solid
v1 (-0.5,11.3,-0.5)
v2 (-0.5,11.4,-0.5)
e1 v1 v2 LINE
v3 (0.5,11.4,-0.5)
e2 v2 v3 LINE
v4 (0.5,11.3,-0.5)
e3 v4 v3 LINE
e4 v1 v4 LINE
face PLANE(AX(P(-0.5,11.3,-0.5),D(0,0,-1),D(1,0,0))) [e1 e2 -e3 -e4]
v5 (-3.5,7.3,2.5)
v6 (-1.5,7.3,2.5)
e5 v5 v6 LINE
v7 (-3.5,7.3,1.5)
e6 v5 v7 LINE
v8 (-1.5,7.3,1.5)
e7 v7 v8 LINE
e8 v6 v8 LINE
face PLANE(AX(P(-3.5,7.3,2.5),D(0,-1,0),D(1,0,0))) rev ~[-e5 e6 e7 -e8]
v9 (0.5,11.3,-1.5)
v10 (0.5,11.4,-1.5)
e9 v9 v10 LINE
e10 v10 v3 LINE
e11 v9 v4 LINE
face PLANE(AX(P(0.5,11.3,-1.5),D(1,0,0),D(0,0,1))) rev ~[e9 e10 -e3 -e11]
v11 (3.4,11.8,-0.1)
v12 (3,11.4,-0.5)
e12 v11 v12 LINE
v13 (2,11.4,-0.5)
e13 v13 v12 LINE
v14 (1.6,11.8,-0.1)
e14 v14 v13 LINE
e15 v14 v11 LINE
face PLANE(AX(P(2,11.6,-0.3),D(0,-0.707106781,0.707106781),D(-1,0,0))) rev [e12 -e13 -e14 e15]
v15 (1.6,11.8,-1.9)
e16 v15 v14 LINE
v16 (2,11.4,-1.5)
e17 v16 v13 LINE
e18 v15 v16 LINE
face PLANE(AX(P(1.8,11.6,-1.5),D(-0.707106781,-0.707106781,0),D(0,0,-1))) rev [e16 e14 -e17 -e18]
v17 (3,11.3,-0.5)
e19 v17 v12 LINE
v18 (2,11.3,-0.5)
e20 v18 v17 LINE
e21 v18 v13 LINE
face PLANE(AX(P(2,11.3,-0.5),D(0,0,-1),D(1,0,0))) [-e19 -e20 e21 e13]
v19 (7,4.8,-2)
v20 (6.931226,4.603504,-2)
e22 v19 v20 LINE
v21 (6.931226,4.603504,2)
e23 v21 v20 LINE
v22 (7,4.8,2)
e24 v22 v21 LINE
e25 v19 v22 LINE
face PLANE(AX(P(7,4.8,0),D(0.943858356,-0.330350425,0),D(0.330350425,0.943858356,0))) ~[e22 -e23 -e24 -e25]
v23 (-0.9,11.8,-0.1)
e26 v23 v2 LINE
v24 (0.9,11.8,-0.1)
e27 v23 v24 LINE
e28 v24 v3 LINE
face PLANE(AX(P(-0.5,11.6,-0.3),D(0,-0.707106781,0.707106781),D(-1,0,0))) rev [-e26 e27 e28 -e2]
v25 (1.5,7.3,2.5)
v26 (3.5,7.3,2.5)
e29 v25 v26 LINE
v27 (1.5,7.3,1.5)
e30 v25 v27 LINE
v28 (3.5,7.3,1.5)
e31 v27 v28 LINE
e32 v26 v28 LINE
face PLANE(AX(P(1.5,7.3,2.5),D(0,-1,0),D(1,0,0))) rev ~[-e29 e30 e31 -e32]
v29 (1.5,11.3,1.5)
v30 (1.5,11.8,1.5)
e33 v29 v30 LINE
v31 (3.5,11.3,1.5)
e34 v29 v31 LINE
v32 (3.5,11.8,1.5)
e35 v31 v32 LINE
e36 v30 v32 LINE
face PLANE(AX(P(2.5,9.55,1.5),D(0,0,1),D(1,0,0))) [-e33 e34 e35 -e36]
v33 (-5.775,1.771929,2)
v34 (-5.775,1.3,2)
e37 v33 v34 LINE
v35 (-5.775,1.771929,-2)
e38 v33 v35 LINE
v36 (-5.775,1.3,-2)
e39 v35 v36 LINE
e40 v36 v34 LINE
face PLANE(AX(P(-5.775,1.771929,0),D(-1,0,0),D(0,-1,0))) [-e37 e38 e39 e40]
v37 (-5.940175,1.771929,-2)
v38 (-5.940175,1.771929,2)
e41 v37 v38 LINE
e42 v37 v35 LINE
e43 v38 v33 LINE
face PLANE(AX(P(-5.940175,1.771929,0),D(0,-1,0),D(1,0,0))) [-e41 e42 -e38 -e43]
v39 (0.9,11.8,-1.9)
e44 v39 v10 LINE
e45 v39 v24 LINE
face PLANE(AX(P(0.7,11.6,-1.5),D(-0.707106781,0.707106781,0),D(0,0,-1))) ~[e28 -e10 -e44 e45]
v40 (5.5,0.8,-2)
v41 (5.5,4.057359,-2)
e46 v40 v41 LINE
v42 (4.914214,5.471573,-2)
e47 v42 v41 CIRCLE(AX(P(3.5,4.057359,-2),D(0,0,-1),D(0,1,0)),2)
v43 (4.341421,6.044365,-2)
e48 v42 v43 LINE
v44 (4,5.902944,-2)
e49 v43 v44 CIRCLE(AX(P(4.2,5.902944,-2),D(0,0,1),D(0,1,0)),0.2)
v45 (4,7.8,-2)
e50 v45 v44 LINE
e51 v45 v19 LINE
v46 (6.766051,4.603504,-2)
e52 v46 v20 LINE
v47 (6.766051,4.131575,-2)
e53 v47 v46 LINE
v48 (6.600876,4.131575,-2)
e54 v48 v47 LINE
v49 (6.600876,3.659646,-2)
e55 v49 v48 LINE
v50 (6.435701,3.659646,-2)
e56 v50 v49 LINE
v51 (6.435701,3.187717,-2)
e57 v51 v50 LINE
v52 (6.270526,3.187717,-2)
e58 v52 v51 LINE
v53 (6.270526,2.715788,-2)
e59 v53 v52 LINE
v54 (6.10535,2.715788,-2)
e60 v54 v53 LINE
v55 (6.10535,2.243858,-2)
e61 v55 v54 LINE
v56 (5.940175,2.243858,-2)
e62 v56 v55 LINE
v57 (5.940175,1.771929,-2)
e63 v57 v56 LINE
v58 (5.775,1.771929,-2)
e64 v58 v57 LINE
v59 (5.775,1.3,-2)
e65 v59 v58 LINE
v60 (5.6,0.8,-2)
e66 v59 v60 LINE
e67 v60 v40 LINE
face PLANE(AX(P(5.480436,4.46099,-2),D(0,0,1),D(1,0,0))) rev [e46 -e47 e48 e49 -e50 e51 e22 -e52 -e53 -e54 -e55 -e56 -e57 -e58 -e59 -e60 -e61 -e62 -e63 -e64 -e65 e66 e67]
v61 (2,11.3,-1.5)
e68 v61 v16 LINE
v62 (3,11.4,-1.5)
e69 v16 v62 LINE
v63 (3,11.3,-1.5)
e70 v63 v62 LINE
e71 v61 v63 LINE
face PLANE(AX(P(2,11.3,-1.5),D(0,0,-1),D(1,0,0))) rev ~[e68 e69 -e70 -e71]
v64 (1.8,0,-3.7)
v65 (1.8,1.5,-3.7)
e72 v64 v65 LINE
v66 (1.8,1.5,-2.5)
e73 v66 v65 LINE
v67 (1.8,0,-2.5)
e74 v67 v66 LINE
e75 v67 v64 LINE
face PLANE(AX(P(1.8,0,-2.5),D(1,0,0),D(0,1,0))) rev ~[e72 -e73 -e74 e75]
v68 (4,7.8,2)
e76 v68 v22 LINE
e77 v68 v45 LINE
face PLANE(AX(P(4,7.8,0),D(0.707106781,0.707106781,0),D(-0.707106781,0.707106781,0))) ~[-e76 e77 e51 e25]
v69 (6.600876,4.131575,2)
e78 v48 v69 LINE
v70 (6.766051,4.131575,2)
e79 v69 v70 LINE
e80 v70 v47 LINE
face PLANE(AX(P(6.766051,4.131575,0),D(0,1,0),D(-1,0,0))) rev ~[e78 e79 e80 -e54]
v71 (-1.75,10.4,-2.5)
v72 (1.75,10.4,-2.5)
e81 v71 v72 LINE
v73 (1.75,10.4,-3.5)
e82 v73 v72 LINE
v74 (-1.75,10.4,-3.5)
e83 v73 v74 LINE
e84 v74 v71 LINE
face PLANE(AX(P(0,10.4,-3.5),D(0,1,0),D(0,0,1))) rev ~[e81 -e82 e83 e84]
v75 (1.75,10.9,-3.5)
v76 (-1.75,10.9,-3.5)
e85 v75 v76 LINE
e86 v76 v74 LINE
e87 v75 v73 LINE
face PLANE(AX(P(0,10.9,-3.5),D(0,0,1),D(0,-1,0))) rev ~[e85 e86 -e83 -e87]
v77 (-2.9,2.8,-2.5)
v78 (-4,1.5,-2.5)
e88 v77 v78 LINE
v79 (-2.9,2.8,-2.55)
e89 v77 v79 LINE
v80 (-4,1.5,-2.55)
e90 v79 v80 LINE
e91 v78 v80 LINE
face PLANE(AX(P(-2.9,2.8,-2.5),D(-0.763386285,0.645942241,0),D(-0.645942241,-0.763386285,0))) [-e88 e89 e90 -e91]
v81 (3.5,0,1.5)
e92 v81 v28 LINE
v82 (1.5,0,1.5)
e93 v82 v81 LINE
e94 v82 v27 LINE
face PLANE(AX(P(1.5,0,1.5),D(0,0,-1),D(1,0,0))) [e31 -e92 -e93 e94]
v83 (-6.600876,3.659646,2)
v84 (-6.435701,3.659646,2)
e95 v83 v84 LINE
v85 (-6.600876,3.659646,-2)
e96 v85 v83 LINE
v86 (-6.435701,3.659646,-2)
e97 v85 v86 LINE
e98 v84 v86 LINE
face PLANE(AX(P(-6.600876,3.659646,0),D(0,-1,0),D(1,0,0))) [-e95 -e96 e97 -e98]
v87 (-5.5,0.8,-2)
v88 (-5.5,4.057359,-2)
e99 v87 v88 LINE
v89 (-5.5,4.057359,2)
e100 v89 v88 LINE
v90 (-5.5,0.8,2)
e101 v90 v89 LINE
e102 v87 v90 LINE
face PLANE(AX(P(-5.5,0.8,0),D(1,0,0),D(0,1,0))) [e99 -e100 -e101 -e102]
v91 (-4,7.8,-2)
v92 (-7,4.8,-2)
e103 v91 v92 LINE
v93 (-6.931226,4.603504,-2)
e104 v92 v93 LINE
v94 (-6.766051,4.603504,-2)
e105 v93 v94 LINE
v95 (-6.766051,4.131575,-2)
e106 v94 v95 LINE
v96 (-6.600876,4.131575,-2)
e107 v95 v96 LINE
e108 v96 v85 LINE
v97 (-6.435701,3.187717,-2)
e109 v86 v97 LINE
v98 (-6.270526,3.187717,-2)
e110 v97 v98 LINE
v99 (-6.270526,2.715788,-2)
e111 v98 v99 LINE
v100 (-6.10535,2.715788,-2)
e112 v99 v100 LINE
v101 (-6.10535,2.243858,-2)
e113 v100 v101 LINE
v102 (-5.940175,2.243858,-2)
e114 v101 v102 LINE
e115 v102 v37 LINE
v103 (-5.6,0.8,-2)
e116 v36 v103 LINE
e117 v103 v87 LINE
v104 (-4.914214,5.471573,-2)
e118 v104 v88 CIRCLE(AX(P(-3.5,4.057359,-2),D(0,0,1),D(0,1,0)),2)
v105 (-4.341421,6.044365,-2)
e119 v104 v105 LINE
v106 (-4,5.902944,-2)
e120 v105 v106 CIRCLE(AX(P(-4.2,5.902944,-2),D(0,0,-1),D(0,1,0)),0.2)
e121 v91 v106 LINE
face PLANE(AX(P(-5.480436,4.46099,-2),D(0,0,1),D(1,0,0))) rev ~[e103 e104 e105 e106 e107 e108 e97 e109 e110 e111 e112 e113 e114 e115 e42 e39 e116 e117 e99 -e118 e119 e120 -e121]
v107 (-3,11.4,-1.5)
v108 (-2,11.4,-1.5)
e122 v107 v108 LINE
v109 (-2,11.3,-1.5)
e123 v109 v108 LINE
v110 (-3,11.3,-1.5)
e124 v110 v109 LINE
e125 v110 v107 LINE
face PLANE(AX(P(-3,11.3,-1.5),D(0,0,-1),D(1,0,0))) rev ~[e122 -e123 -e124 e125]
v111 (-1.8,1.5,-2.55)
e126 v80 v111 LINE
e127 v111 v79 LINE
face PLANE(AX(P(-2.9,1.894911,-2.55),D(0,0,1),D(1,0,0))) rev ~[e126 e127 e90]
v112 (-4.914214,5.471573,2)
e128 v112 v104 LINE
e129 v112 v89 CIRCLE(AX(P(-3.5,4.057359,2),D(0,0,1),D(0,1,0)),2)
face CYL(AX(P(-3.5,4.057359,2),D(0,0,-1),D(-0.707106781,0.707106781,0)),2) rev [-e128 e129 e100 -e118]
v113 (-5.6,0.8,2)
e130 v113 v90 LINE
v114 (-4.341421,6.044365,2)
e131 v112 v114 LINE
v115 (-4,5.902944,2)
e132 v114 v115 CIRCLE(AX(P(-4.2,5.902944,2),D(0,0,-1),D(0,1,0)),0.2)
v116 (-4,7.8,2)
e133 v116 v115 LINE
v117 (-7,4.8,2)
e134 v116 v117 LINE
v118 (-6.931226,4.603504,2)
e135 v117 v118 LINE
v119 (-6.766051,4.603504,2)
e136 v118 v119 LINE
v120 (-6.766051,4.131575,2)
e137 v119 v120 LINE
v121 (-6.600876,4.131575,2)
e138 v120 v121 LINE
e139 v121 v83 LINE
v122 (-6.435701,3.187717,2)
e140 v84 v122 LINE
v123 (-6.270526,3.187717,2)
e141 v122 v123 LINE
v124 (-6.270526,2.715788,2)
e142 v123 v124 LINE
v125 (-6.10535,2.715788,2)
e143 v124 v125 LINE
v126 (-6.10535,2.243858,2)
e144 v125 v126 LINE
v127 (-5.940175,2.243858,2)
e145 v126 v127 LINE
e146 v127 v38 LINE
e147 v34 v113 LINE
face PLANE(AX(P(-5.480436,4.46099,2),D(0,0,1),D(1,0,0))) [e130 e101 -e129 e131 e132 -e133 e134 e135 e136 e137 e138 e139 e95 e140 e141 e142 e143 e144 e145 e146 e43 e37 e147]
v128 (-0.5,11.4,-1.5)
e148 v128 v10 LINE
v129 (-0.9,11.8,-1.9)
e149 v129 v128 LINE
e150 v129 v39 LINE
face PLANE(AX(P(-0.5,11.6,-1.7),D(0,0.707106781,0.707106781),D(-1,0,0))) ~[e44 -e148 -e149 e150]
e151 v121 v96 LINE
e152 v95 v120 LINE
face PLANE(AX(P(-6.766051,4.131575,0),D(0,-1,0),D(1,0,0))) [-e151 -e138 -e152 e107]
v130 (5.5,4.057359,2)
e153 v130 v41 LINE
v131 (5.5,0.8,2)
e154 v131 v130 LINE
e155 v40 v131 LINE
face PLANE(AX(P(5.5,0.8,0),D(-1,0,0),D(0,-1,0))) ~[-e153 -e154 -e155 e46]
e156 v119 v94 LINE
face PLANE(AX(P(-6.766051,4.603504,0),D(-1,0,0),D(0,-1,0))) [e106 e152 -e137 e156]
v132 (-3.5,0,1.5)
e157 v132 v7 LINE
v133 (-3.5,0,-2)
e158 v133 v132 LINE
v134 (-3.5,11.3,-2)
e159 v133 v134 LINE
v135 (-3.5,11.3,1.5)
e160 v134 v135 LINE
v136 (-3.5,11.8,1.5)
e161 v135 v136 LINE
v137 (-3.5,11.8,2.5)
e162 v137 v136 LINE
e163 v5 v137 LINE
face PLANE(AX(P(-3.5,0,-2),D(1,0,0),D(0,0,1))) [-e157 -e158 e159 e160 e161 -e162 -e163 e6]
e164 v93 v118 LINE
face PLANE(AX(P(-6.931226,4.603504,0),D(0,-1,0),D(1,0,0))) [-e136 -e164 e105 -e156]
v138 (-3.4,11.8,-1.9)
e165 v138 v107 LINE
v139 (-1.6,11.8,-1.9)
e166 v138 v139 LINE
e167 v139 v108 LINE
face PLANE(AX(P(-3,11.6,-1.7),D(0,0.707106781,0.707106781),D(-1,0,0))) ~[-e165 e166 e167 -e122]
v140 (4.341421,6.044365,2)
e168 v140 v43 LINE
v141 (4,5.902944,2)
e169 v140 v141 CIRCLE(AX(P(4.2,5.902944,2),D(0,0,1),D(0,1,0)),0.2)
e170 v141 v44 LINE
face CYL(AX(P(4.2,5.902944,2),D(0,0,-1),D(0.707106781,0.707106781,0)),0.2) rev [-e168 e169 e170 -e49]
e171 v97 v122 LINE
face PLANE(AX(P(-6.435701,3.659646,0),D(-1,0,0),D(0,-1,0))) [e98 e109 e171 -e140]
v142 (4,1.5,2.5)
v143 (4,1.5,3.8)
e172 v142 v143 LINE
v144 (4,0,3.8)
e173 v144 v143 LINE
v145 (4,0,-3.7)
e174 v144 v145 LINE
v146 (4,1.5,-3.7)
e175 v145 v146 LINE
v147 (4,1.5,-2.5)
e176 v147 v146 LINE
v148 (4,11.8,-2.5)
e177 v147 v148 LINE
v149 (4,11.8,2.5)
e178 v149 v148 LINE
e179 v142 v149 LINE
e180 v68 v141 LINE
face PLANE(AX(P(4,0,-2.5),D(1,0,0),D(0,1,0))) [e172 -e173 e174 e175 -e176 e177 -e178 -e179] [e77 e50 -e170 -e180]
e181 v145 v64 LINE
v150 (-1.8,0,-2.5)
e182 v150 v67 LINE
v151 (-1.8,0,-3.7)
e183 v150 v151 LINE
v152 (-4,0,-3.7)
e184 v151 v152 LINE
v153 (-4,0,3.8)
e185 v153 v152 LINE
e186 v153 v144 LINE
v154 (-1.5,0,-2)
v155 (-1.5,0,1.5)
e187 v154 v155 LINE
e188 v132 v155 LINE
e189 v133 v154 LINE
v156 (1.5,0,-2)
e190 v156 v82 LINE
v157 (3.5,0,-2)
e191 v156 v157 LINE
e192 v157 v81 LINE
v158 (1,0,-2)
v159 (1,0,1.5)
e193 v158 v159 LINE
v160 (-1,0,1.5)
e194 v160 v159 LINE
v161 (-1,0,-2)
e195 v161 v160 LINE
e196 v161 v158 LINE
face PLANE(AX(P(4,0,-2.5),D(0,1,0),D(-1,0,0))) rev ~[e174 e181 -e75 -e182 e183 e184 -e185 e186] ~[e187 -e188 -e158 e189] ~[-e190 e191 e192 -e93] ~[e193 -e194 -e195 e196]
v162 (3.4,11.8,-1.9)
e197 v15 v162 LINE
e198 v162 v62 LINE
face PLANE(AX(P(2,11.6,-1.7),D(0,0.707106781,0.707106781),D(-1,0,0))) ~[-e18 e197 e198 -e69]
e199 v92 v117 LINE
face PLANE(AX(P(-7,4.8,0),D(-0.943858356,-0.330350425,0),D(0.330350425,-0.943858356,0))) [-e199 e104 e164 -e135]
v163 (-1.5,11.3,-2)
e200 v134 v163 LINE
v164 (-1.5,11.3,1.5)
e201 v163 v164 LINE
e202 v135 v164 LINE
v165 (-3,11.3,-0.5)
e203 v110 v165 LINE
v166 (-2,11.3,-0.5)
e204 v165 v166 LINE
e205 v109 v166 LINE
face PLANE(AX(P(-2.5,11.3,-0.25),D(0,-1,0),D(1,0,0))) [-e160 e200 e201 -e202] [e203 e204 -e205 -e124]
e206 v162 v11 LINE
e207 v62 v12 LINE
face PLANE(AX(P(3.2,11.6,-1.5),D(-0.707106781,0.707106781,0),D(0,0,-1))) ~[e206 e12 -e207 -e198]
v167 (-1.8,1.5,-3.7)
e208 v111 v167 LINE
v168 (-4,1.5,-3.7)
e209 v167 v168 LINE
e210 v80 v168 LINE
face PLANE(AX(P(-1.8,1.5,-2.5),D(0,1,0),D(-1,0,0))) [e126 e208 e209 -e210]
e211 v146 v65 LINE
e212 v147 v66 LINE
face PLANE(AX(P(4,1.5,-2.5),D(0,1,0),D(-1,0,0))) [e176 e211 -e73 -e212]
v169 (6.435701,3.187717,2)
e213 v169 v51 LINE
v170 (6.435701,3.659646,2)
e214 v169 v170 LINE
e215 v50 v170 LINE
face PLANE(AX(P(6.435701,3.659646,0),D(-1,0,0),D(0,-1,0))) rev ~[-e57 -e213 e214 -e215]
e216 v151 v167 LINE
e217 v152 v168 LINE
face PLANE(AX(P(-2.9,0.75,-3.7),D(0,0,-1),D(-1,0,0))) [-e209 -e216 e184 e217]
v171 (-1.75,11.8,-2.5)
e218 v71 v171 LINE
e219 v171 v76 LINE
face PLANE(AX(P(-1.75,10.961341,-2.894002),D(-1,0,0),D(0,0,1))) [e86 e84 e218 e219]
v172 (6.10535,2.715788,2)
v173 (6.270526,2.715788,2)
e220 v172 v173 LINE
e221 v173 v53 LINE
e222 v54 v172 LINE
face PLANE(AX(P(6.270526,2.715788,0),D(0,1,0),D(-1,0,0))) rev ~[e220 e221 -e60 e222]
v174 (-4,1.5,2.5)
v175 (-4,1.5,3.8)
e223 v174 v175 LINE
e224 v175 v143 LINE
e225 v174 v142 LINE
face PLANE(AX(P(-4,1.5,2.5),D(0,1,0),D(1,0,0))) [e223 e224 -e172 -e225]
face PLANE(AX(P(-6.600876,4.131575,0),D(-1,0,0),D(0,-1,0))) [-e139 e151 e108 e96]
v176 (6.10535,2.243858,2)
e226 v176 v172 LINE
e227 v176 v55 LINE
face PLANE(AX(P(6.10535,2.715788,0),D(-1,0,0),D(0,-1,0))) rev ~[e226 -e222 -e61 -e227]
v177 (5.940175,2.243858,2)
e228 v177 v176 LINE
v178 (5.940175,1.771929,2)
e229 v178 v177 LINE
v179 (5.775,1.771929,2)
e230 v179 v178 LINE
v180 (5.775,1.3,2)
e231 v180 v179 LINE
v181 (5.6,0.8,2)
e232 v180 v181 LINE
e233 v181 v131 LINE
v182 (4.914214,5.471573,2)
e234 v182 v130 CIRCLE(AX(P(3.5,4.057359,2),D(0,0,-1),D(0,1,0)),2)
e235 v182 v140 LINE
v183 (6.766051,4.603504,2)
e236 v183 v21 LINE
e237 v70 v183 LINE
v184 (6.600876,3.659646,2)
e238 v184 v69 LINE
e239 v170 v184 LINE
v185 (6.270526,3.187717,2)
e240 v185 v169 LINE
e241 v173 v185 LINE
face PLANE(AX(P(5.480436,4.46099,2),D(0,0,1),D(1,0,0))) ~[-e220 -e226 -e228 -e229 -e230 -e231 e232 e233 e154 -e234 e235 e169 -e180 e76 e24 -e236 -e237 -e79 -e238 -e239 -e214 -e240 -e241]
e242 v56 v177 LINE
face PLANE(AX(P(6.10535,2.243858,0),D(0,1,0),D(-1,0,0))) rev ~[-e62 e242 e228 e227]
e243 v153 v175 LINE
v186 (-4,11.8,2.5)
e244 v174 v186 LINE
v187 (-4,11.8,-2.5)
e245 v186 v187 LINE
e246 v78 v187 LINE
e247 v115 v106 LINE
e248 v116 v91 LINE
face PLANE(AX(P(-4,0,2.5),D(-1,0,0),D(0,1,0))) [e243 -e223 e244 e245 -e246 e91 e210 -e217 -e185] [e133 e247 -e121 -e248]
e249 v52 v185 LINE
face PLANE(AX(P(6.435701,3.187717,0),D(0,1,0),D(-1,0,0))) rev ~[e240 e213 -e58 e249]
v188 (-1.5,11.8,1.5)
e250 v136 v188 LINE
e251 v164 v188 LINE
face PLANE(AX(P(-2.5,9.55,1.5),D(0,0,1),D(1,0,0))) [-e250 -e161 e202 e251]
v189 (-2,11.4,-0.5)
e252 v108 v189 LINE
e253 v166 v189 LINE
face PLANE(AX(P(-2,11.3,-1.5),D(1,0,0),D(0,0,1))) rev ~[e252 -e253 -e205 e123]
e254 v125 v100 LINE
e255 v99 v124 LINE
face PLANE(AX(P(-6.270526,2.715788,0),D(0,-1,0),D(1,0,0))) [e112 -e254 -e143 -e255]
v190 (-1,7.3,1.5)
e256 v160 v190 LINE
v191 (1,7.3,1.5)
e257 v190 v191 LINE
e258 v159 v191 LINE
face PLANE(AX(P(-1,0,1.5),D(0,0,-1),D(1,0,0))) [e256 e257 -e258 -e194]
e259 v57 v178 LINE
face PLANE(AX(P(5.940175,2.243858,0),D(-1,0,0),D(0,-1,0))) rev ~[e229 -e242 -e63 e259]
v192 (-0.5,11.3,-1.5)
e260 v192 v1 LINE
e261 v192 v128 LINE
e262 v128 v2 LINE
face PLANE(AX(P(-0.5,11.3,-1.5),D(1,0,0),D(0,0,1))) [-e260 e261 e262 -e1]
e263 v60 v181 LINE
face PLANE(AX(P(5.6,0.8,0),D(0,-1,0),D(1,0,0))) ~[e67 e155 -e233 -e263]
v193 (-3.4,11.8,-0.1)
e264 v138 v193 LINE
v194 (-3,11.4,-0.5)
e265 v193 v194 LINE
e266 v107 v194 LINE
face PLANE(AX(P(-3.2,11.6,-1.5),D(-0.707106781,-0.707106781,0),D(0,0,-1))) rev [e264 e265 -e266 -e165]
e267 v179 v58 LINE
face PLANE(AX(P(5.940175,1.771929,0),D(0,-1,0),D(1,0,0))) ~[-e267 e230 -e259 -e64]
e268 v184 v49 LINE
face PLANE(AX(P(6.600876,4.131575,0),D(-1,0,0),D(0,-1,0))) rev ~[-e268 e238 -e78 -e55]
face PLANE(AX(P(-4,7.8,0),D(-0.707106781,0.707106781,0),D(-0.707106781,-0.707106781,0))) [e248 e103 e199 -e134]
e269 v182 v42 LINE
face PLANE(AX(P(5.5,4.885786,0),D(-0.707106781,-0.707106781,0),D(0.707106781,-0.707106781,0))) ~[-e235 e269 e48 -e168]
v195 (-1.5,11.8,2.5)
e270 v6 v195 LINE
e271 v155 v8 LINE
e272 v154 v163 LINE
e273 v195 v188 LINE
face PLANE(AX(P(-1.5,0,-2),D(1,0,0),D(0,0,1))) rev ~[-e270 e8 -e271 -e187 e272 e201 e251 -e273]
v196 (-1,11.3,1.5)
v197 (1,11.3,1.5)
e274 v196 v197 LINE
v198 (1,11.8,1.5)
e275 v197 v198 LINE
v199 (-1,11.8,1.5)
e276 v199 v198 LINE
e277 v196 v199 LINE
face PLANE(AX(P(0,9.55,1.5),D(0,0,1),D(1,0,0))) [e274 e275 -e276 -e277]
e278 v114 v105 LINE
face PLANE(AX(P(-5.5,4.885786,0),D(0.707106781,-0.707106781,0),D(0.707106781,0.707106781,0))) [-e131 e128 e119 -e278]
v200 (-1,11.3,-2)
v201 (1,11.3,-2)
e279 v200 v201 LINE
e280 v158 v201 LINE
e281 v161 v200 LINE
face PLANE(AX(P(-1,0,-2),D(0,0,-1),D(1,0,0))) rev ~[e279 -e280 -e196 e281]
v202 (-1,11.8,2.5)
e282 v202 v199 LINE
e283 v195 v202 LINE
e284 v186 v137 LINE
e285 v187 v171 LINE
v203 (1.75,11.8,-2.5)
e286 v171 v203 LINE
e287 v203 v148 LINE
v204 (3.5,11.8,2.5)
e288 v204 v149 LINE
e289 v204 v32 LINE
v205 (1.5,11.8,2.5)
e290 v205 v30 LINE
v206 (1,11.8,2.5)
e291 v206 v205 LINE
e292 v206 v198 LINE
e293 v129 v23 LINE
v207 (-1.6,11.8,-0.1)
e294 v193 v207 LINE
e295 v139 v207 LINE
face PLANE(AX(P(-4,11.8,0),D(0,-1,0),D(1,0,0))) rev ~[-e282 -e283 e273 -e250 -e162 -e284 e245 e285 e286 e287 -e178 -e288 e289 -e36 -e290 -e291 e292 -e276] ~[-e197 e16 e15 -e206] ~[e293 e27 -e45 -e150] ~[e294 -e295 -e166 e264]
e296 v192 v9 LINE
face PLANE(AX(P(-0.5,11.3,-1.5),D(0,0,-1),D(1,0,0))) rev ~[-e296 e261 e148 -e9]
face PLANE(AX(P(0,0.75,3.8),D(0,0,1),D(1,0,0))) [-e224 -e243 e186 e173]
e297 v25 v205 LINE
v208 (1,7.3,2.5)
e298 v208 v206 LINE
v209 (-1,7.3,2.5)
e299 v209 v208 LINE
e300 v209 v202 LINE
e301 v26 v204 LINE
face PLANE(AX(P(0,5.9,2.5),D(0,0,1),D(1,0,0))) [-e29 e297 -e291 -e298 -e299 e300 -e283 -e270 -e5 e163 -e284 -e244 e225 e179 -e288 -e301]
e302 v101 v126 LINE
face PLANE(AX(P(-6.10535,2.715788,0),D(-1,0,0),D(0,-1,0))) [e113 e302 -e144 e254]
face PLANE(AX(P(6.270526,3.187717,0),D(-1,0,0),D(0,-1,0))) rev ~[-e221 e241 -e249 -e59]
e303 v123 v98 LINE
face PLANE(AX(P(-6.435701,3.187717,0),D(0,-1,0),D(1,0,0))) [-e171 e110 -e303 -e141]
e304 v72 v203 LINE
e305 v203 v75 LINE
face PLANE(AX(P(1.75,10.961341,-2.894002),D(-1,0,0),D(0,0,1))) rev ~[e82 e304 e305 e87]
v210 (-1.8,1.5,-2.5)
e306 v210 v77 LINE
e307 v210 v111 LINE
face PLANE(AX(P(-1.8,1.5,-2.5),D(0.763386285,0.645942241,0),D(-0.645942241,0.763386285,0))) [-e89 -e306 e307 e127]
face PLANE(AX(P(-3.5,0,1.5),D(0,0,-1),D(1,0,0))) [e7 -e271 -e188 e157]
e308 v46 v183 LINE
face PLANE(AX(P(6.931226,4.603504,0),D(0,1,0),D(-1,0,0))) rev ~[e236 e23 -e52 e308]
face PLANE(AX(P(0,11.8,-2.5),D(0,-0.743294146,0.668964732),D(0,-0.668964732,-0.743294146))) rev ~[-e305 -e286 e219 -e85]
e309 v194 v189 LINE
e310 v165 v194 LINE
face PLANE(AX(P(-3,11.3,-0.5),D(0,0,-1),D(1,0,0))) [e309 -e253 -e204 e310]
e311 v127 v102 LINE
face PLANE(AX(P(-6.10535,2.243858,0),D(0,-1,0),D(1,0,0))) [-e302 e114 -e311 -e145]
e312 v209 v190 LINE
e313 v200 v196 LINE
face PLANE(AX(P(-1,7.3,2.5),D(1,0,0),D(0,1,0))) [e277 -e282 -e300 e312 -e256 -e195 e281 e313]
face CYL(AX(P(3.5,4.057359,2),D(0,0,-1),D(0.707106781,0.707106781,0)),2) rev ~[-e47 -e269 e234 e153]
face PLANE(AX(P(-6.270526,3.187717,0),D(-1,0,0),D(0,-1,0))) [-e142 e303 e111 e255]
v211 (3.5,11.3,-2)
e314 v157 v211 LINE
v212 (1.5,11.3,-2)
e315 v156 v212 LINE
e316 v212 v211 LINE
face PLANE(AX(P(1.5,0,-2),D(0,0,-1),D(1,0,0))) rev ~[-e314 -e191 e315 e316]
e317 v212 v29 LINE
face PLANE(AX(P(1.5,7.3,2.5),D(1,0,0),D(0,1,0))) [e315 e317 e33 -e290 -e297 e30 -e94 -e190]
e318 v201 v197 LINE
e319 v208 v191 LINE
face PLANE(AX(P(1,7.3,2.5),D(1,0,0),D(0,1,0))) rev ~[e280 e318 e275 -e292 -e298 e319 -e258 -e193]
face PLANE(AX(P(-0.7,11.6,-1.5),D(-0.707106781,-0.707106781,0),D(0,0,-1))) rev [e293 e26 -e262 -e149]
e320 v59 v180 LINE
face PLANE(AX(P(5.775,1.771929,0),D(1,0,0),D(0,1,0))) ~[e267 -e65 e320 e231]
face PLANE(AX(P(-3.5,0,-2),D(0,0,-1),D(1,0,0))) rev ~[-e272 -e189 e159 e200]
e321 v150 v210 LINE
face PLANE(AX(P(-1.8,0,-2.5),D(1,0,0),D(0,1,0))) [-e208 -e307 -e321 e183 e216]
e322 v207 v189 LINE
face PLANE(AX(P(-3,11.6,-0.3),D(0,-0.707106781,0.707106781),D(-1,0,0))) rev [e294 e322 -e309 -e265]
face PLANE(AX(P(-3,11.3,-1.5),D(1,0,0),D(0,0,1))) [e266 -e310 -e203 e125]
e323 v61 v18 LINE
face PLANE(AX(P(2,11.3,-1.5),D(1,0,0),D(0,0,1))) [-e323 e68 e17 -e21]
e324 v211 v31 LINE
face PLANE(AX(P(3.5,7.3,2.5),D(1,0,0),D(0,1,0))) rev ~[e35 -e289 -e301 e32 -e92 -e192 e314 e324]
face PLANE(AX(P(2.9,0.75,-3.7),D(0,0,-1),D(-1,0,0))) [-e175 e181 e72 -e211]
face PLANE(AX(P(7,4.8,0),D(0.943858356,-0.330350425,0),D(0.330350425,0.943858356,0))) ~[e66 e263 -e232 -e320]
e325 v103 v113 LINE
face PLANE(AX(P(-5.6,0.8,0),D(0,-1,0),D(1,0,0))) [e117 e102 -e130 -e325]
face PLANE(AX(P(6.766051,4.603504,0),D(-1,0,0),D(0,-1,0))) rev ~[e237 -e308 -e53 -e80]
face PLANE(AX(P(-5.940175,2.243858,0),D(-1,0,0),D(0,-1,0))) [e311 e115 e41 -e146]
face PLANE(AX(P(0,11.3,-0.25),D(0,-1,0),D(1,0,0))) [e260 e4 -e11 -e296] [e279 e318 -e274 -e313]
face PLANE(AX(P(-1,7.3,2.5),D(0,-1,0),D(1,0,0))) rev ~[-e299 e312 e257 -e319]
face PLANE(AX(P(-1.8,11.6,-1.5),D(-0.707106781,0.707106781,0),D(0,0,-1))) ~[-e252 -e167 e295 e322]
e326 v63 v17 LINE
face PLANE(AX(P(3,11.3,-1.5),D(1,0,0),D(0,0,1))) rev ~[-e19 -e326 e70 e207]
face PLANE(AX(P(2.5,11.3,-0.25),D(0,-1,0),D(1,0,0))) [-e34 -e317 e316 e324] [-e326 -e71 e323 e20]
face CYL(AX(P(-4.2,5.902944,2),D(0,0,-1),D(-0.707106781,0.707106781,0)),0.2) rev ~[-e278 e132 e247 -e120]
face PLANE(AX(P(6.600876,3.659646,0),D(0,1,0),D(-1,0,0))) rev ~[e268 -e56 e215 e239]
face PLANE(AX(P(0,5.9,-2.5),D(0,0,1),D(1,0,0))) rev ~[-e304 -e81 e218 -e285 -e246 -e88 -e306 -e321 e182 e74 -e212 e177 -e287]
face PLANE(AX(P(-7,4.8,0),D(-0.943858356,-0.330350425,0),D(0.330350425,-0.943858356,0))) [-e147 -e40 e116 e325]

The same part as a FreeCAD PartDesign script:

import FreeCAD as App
import Part
import Sketcher
Q = App.Units.Quantity


def edges_at(feature, points):
    """Names of the edges that pass closest to the given points."""
    edges = feature.Shape.Edges
    near = lambda p: min(range(len(edges)), key=lambda i: edges[i].distToShape(Part.Vertex(*p))[0])
    return sorted({f"Edge{near(p) + 1}" for p in points})

doc = App.newDocument("Part")
params = doc.addObject("Spreadsheet::Sheet", "Params")
for row, (alias, value) in enumerate([
    ("sketch1_width", "8 mm"),
    ("sketch1_height", "11.8 mm"),
    ("pad1_length", "5 mm"),
    ("sketch2_width", "8 mm"),
    ("sketch2_height", "1.5 mm"),
    ("pad2_length", "1.3 mm"),
    ("sketch3_width", "2.2 mm"),
    ("sketch3_height", "1.5 mm"),
    ("pad3_length", "1.2 mm"),
    ("sketch4_height", "1 mm"),
    ("sketch4_width", "1.4 mm"),
    ("sketch4_width2", "0.5 mm"),
    ("pad4_length", "3.5 mm"),
    ("sketch5_width", "2.2 mm"),
    ("pad5_length", "0.05 mm"),
    ("sketch6_width", "2 mm"),
    ("sketch6_height", "3.5 mm"),
    ("pocket1_length", "11.3 mm"),
    ("sketch7_width", "2 mm"),
    ("sketch7_height", "4.5 mm"),
    ("pocket2_length", "1 mm"),
    ("sketch8_width", "1 mm"),
    ("chamfer_size", "0.4 mm"),
    ("linearpattern_pitch", "2.5 mm"),
    ("chamfer2_size", "0.4 mm"),
    ("sketch9_width", "0.1 mm"),
    ("pad6_length", "4 mm"),
    ("sketch10_length", "0.5 mm"),
    ("pocket4_length", "5 mm"),
    ("linearpattern2_pitch", "0.5 mm"),
    ("fillet_radius", "2 mm"),
    ("fillet2_radius", "0.2 mm"),
    ("sketch11_length", "0.5 mm"),
    ("pocket5_length", "5 mm"),
    ("sketch12_length", "0.5 mm"),
    ("pocket6_length", "5 mm"),
    ("sketch13_length", "0.5 mm"),
    ("pocket7_length", "5 mm"),
    ("sketch14_length", "0.5 mm"),
    ("pocket8_length", "5 mm"),
    ("sketch15_length", "0.5 mm"),
    ("pocket9_length", "5 mm"),
    ("sketch16_length", "0.5 mm"),
    ("pocket10_length", "5 mm"),
    ("fillet3_radius", "2 mm"),
    ("fillet4_radius", "0.2 mm"),
], start=1):
    params.set(f"A{row}", alias)
    params.set(f"B{row}", "=" + value)
    params.setAlias(f"B{row}", alias)

body = doc.addObject("PartDesign::Body", "Body")

sketch1 = doc.addObject("Sketcher::SketchObject", "Sketch")
body.addObject(sketch1)
sketch1.AttachmentSupport = (doc.XY_Plane, [""])
sketch1.MapMode = "FlatFace"
sketch1.addGeometry([
    Part.LineSegment(App.Vector(-4, 12, 0), App.Vector(-4, 0, 0)),
    Part.LineSegment(App.Vector(-4, 0, 0), App.Vector(4, 0, 0)),
    Part.LineSegment(App.Vector(4, 0, 0), App.Vector(4, 12, 0)),
    Part.LineSegment(App.Vector(4, 12, 0), App.Vector(-4, 12, 0)),
], False)
sketch1.addConstraint([
    Sketcher.Constraint("Coincident", 0, 2, 1, 1),
    Sketcher.Constraint("Coincident", 1, 2, 2, 1),
    Sketcher.Constraint("Coincident", 2, 2, 3, 1),
    Sketcher.Constraint("Coincident", 3, 2, 0, 1),
    Sketcher.Constraint("Vertical", 0),
    Sketcher.Constraint("Horizontal", 1),
    Sketcher.Constraint("Vertical", 2),
    Sketcher.Constraint("Horizontal", 3),
    Sketcher.Constraint("Symmetric", 0, 2, 1, 2, -1, 1),
    Sketcher.Constraint("DistanceX", 1, 1, 1, 2, 8.0),
    Sketcher.Constraint("DistanceY", 0, 2, 0, 1, 11.8),
])
sketch1.setExpression("Constraints[9]", "Params.sketch1_width")
sketch1.setExpression("Constraints[10]", "Params.sketch1_height")
pad1 = doc.addObject("PartDesign::Pad", "Pad")
body.addObject(pad1)
pad1.Profile = sketch1
pad1.setExpression("Length", "Params.pad1_length")
pad1.Midplane = True

sketch2 = doc.addObject("Sketcher::SketchObject", "Sketch001")
body.addObject(sketch2)
sketch2.AttachmentSupport = (doc.XY_Plane, [""])
sketch2.MapMode = "FlatFace"
sketch2.AttachmentOffset = App.Placement(App.Vector(0, 0, 2.5), App.Rotation())
sketch2.addGeometry([
    Part.LineSegment(App.Vector(-4, 1.5, 0), App.Vector(-4, 0, 0)),
    Part.LineSegment(App.Vector(-4, 0, 0), App.Vector(4, 0, 0)),
    Part.LineSegment(App.Vector(4, 0, 0), App.Vector(4, 1.5, 0)),
    Part.LineSegment(App.Vector(4, 1.5, 0), App.Vector(-4, 1.5, 0)),
], False)
sketch2.addConstraint([
    Sketcher.Constraint("Coincident", 0, 2, 1, 1),
    Sketcher.Constraint("Coincident", 1, 2, 2, 1),
    Sketcher.Constraint("Coincident", 2, 2, 3, 1),
    Sketcher.Constraint("Coincident", 3, 2, 0, 1),
    Sketcher.Constraint("Vertical", 0),
    Sketcher.Constraint("Horizontal", 1),
    Sketcher.Constraint("Vertical", 2),
    Sketcher.Constraint("Horizontal", 3),
    Sketcher.Constraint("Symmetric", 0, 2, 1, 2, -1, 1),
    Sketcher.Constraint("DistanceX", 1, 1, 1, 2, 8.0),
    Sketcher.Constraint("DistanceY", 0, 2, 0, 1, 1.5),
])
sketch2.setExpression("Constraints[9]", "Params.sketch2_width")
sketch2.setExpression("Constraints[10]", "Params.sketch2_height")
pad2 = doc.addObject("PartDesign::Pad", "Pad001")
body.addObject(pad2)
pad2.Profile = sketch2
pad2.setExpression("Length", "Params.pad2_length")

sketch3 = doc.addObject("Sketcher::SketchObject", "Sketch002")
body.addObject(sketch3)
sketch3.AttachmentSupport = (doc.XY_Plane, [""])
sketch3.MapMode = "FlatFace"
sketch3.AttachmentOffset = App.Placement(App.Vector(0, 0, -2.5), App.Rotation())
sketch3.addGeometry([
    Part.LineSegment(App.Vector(4, 1.5, 0), App.Vector(4, 0, 0)),
    Part.LineSegment(App.Vector(4, 0, 0), App.Vector(1.8, 0, 0)),
    Part.LineSegment(App.Vector(1.8, 0, 0), App.Vector(1.8, 1.5, 0)),
    Part.LineSegment(App.Vector(1.8, 1.5, 0), App.Vector(4, 1.5, 0)),
    Part.LineSegment(App.Vector(-1.8, 1.5, 0), App.Vector(-1.8, 0, 0)),
    Part.LineSegment(App.Vector(-1.8, 0, 0), App.Vector(-4, 0, 0)),
    Part.LineSegment(App.Vector(-4, 0, 0), App.Vector(-4, 1.5, 0)),
    Part.LineSegment(App.Vector(-4, 1.5, 0), App.Vector(-1.8, 1.5, 0)),
], False)
sketch3.addConstraint([
    Sketcher.Constraint("Coincident", 0, 2, 1, 1),
    Sketcher.Constraint("Coincident", 1, 2, 2, 1),
    Sketcher.Constraint("Coincident", 2, 2, 3, 1),
    Sketcher.Constraint("Coincident", 3, 2, 0, 1),
    Sketcher.Constraint("Coincident", 4, 2, 5, 1),
    Sketcher.Constraint("Coincident", 5, 2, 6, 1),
    Sketcher.Constraint("Coincident", 6, 2, 7, 1),
    Sketcher.Constraint("Coincident", 7, 2, 4, 1),
    Sketcher.Constraint("Vertical", 0),
    Sketcher.Constraint("Horizontal", 1),
    Sketcher.Constraint("Vertical", 2),
    Sketcher.Constraint("Horizontal", 3),
    Sketcher.Constraint("Vertical", 4),
    Sketcher.Constraint("Horizontal", 5),
    Sketcher.Constraint("Vertical", 6),
    Sketcher.Constraint("Horizontal", 7),
    Sketcher.Constraint("Symmetric", 1, 2, 4, 2, -1, 1),
    Sketcher.Constraint("Symmetric", 0, 2, 5, 2, -2),
    Sketcher.Constraint("Horizontal", 3, 2, 6, 2),
    Sketcher.Constraint("DistanceX", 1, 2, 1, 1, 2.2),
    Sketcher.Constraint("DistanceY", 0, 2, 0, 1, 1.5),
    Sketcher.Constraint("DistanceX", -1, 1, 0, 2, 4.0),
])
sketch3.setExpression("Constraints[19]", "Params.sketch3_width")
sketch3.setExpression("Constraints[20]", "Params.sketch3_height")
pad3 = doc.addObject("PartDesign::Pad", "Pad002")
body.addObject(pad3)
pad3.Profile = sketch3
pad3.setExpression("Length", "Params.pad3_length")
pad3.Reversed = True

sketch4 = doc.addObject("Sketcher::SketchObject", "Sketch003")
body.addObject(sketch4)
sketch4.AttachmentSupport = (doc.YZ_Plane, [""])
sketch4.MapMode = "FlatFace"
sketch4.addGeometry([
    Part.LineSegment(App.Vector(10.9, -3.5, 0), App.Vector(11.8, -2.5, 0)),
    Part.LineSegment(App.Vector(11.8, -2.5, 0), App.Vector(10.4, -2.5, 0)),
    Part.LineSegment(App.Vector(10.4, -2.5, 0), App.Vector(10.4, -3.5, 0)),
    Part.LineSegment(App.Vector(10.4, -3.5, 0), App.Vector(10.9, -3.5, 0)),
], False)
sketch4.addConstraint([
    Sketcher.Constraint("Coincident", 0, 2, 1, 1),
    Sketcher.Constraint("Coincident", 1, 2, 2, 1),
    Sketcher.Constraint("Coincident", 2, 2, 3, 1),
    Sketcher.Constraint("Coincident", 3, 2, 0, 1),
    Sketcher.Constraint("Horizontal", 1),
    Sketcher.Constraint("Vertical", 2),
    Sketcher.Constraint("Horizontal", 3),
    Sketcher.Constraint("DistanceY", 2, 2, 2, 1, 1.0),
    Sketcher.Constraint("DistanceX", 1, 2, 1, 1, 1.4),
    Sketcher.Constraint("DistanceX", 3, 1, 3, 2, 0.5),
    Sketcher.Constraint("DistanceX", -1, 1, 0, 2, 11.8),
    Sketcher.Constraint("DistanceY", 0, 2, -1, 1, 2.5),
])
sketch4.setExpression("Constraints[7]", "Params.sketch4_height")
sketch4.setExpression("Constraints[8]", "Params.sketch4_width")
sketch4.setExpression("Constraints[9]", "Params.sketch4_width2")
pad4 = doc.addObject("PartDesign::Pad", "Pad003")
body.addObject(pad4)
pad4.Profile = sketch4
pad4.setExpression("Length", "Params.pad4_length")
pad4.Midplane = True

sketch5 = doc.addObject("Sketcher::SketchObject", "Sketch004")
body.addObject(sketch5)
sketch5.AttachmentSupport = (doc.XY_Plane, [""])
sketch5.MapMode = "FlatFace"
sketch5.AttachmentOffset = App.Placement(App.Vector(0, 0, -2.5), App.Rotation())
sketch5.addGeometry([
    Part.LineSegment(App.Vector(-2.9, 2.8, 0), App.Vector(-1.8, 1.5, 0)),
    Part.LineSegment(App.Vector(-1.8, 1.5, 0), App.Vector(-4, 1.5, 0)),
    Part.LineSegment(App.Vector(-4, 1.5, 0), App.Vector(-2.9, 2.8, 0)),
], False)
sketch5.addConstraint([
    Sketcher.Constraint("Coincident", 0, 2, 1, 1),
    Sketcher.Constraint("Coincident", 1, 2, 2, 1),
    Sketcher.Constraint("Coincident", 2, 2, 0, 1),
    Sketcher.Constraint("Horizontal", 1),
    Sketcher.Constraint("Equal", 0, 2),
    Sketcher.Constraint("DistanceX", 1, 2, 1, 1, 2.2),
    Sketcher.Constraint("DistanceX", 1, 2, -1, 1, 4.0),
    Sketcher.Constraint("DistanceY", -1, 1, 0, 2, 1.5),
    Sketcher.Constraint("DistanceY", -1, 1, 2, 2, 2.8),
])
sketch5.setExpression("Constraints[5]", "Params.sketch5_width")
pad5 = doc.addObject("PartDesign::Pad", "Pad004")
body.addObject(pad5)
pad5.Profile = sketch5
pad5.setExpression("Length", "Params.pad5_length")
pad5.Reversed = True

sketch6 = doc.addObject("Sketcher::SketchObject", "Sketch005")
body.addObject(sketch6)
sketch6.AttachmentSupport = (doc.XZ_Plane, [""])
sketch6.MapMode = "FlatFace"
sketch6.addGeometry([
    Part.LineSegment(App.Vector(-3.5, 1.5, 0), App.Vector(-3.5, -2, 0)),
    Part.LineSegment(App.Vector(-3.5, -2, 0), App.Vector(-1.5, -2, 0)),
    Part.LineSegment(App.Vector(-1.5, -2, 0), App.Vector(-1.5, 1.5, 0)),
    Part.LineSegment(App.Vector(-1.5, 1.5, 0), App.Vector(-3.5, 1.5, 0)),
], False)
sketch6.addConstraint([
    Sketcher.Constraint("Coincident", 0, 2, 1, 1),
    Sketcher.Constraint("Coincident", 1, 2, 2, 1),
    Sketcher.Constraint("Coincident", 2, 2, 3, 1),
    Sketcher.Constraint("Coincident", 3, 2, 0, 1),
    Sketcher.Constraint("Vertical", 0),
    Sketcher.Constraint("Horizontal", 1),
    Sketcher.Constraint("Vertical", 2),
    Sketcher.Constraint("Horizontal", 3),
    Sketcher.Constraint("DistanceX", 1, 1, 1, 2, 2.0),
    Sketcher.Constraint("DistanceY", 0, 2, 0, 1, 3.5),
    Sketcher.Constraint("DistanceY", 0, 2, -1, 1, 2.0),
    Sketcher.Constraint("DistanceX", 0, 2, -1, 1, 3.5),
])
sketch6.setExpression("Constraints[8]", "Params.sketch6_width")
sketch6.setExpression("Constraints[9]", "Params.sketch6_height")
pocket1 = doc.addObject("PartDesign::Pocket", "Pocket")
body.addObject(pocket1)
pocket1.Profile = sketch6
pocket1.setExpression("Length", "Params.pocket1_length")

sketch7 = doc.addObject("Sketcher::SketchObject", "Sketch006")
body.addObject(sketch7)
sketch7.AttachmentSupport = (doc.XY_Plane, [""])
sketch7.MapMode = "FlatFace"
sketch7.AttachmentOffset = App.Placement(App.Vector(0, 0, 2.5), App.Rotation())
sketch7.addGeometry([
    Part.LineSegment(App.Vector(-3.5, 11.8, 0), App.Vector(-3.5, 7.3, 0)),
    Part.LineSegment(App.Vector(-3.5, 7.3, 0), App.Vector(-1.5, 7.3, 0)),
    Part.LineSegment(App.Vector(-1.5, 7.3, 0), App.Vector(-1.5, 11.8, 0)),
    Part.LineSegment(App.Vector(-1.5, 11.8, 0), App.Vector(-3.5, 11.8, 0)),
], False)
sketch7.addConstraint([
    Sketcher.Constraint("Coincident", 0, 2, 1, 1),
    Sketcher.Constraint("Coincident", 1, 2, 2, 1),
    Sketcher.Constraint("Coincident", 2, 2, 3, 1),
    Sketcher.Constraint("Coincident", 3, 2, 0, 1),
    Sketcher.Constraint("Vertical", 0),
    Sketcher.Constraint("Horizontal", 1),
    Sketcher.Constraint("Vertical", 2),
    Sketcher.Constraint("Horizontal", 3),
    Sketcher.Constraint("DistanceX", 1, 1, 1, 2, 2.0),
    Sketcher.Constraint("DistanceY", 0, 2, 0, 1, 4.5),
    Sketcher.Constraint("DistanceX", 0, 2, -1, 1, 3.5),
    Sketcher.Constraint("DistanceY", -1, 1, 0, 2, 7.3),
])
sketch7.setExpression("Constraints[8]", "Params.sketch7_width")
sketch7.setExpression("Constraints[9]", "Params.sketch7_height")
pocket2 = doc.addObject("PartDesign::Pocket", "Pocket001")
body.addObject(pocket2)
pocket2.Profile = sketch7
pocket2.setExpression("Length", "Params.pocket2_length")

sketch8 = doc.addObject("Sketcher::SketchObject", "Sketch007")
body.addObject(sketch8)
sketch8.AttachmentSupport = (doc.XZ_Plane, [""])
sketch8.MapMode = "FlatFace"
sketch8.AttachmentOffset = App.Placement(App.Vector(0, 0, -11.3), App.Rotation())
sketch8.addGeometry([
    Part.LineSegment(App.Vector(-3, -0.5, 0), App.Vector(-3, -1.5, 0)),
    Part.LineSegment(App.Vector(-3, -1.5, 0), App.Vector(-2, -1.5, 0)),
    Part.LineSegment(App.Vector(-2, -1.5, 0), App.Vector(-2, -0.5, 0)),
    Part.LineSegment(App.Vector(-2, -0.5, 0), App.Vector(-3, -0.5, 0)),
], False)
sketch8.addConstraint([
    Sketcher.Constraint("Coincident", 0, 2, 1, 1),
    Sketcher.Constraint("Coincident", 1, 2, 2, 1),
    Sketcher.Constraint("Coincident", 2, 2, 3, 1),
    Sketcher.Constraint("Coincident", 3, 2, 0, 1),
    Sketcher.Constraint("Vertical", 0),
    Sketcher.Constraint("Horizontal", 1),
    Sketcher.Constraint("Vertical", 2),
    Sketcher.Constraint("Horizontal", 3),
    Sketcher.Constraint("Equal", 3, 0),
    Sketcher.Constraint("DistanceX", 1, 1, 1, 2, 1.0),
    Sketcher.Constraint("DistanceX", 0, 2, -1, 1, 3.0),
    Sketcher.Constraint("DistanceY", 0, 2, -1, 1, 1.5),
])
sketch8.setExpression("Constraints[9]", "Params.sketch8_width")
pocket3 = doc.addObject("PartDesign::Pocket", "Pocket002")
body.addObject(pocket3)
pocket3.Profile = sketch8
pocket3.Type = "ThroughAll"
doc.recompute()

chamfer = doc.addObject("PartDesign::Chamfer", "Chamfer")
body.addObject(chamfer)
chamfer.Base = (pocket3, edges_at(pocket3, [
    (-3, 11.8, -1),
    (-2.5, 11.8, -0.5),
    (-2, 11.8, -1),
    (-2.5, 11.8, -1.5),
]))
chamfer.setExpression("Size", "Params.chamfer_size")
doc.recompute()

linearpattern = doc.addObject("PartDesign::LinearPattern", "LinearPattern")
body.addObject(linearpattern)
linearpattern.Originals = [pocket1, pocket2, pocket3]
linearpattern.Direction = (doc.X_Axis, [""])
linearpattern.Mode = "offset"
linearpattern.setExpression("Offset", "Params.linearpattern_pitch")
linearpattern.Occurrences = 3
body.Tip = linearpattern
doc.recompute()

chamfer2 = doc.addObject("PartDesign::Chamfer", "Chamfer001")
body.addObject(chamfer2)
chamfer2.Base = (linearpattern, edges_at(linearpattern, [
    (-0.5, 11.8, -1),
    (0, 11.8, -0.5),
    (0.5, 11.8, -1),
    (0, 11.8, -1.5),
    (2, 11.8, -1),
    (2.5, 11.8, -0.5),
    (3, 11.8, -1),
    (2.5, 11.8, -1.5),
]))
chamfer2.setExpression("Size", "Params.chamfer2_size")

sketch9 = doc.addObject("Sketcher::SketchObject", "Sketch008")
body.addObject(sketch9)
sketch9.AttachmentSupport = (doc.XY_Plane, [""])
sketch9.MapMode = "FlatFace"
sketch9.addGeometry([
    Part.LineSegment(App.Vector(-4, 7.8, 0), App.Vector(-7, 4.8, 0)),
    Part.LineSegment(App.Vector(-7, 4.8, 0), App.Vector(-5.6, 0.8, 0)),
    Part.LineSegment(App.Vector(-5.6, 0.8, 0), App.Vector(-5.5, 0.8, 0)),
    Part.LineSegment(App.Vector(-5.5, 0.8, 0), App.Vector(-5.5, 4.89, 0)),
    Part.LineSegment(App.Vector(-5.5, 4.89, 0), App.Vector(-4, 6.39, 0)),
    Part.LineSegment(App.Vector(-4, 6.39, 0), App.Vector(-4, 7.8, 0)),
], False)
sketch9.addConstraint([
    Sketcher.Constraint("Coincident", 0, 2, 1, 1),
    Sketcher.Constraint("Coincident", 1, 2, 2, 1),
    Sketcher.Constraint("Coincident", 2, 2, 3, 1),
    Sketcher.Constraint("Coincident", 3, 2, 4, 1),
    Sketcher.Constraint("Coincident", 4, 2, 5, 1),
    Sketcher.Constraint("Coincident", 5, 2, 0, 1),
    Sketcher.Constraint("Horizontal", 2),
    Sketcher.Constraint("Vertical", 3),
    Sketcher.Constraint("Vertical", 5),
    Sketcher.Constraint("Parallel", 0, 4),
    Sketcher.Constraint("Angle", 0, Q("-135 deg")),
    Sketcher.Constraint("DistanceX", 2, 1, 2, 2, 0.1),
    Sketcher.Constraint("DistanceX", 0, 2, -1, 1, 7.0),
    Sketcher.Constraint("DistanceX", 4, 2, -1, 1, 4.0),
    Sketcher.Constraint("DistanceY", 1, 2, 0, 2, 4.0),
    Sketcher.Constraint("DistanceY", -1, 1, 0, 2, 4.8),
    Sketcher.Constraint("DistanceX", 1, 2, -1, 1, 5.6),
    Sketcher.Constraint("DistanceY", 3, 1, 3, 2, 4.085786),
])
sketch9.setExpression("Constraints[11]", "Params.sketch9_width")
pad6 = doc.addObject("PartDesign::Pad", "Pad005")
body.addObject(pad6)
pad6.Profile = sketch9
pad6.setExpression("Length", "Params.pad6_length")
pad6.Midplane = True

sketch10 = doc.addObject("Sketcher::SketchObject", "Sketch009")
body.addObject(sketch10)
sketch10.AttachmentSupport = (doc.XY_Plane, [""])
sketch10.MapMode = "FlatFace"
sketch10.addGeometry([
    Part.LineSegment(App.Vector(-5.78, 1.77, 0), App.Vector(-5.94, 1.77, 0)),
    Part.LineSegment(App.Vector(-5.94, 1.77, 0), App.Vector(-5.78, 1.3, 0)),
    Part.LineSegment(App.Vector(-5.78, 1.3, 0), App.Vector(-5.78, 1.77, 0)),
], False)
sketch10.addConstraint([
    Sketcher.Constraint("Coincident", 0, 2, 1, 1),
    Sketcher.Constraint("Coincident", 1, 2, 2, 1),
    Sketcher.Constraint("Coincident", 2, 2, 0, 1),
    Sketcher.Constraint("Horizontal", 0),
    Sketcher.Constraint("Vertical", 2),
    Sketcher.Constraint("Distance", 1, 0.5),
    Sketcher.Constraint("DistanceY", -1, 1, 1, 2, 1.3),
    Sketcher.Constraint("DistanceX", 1, 2, -1, 1, 5.775),
    Sketcher.Constraint("DistanceY", 2, 1, 2, 2, 0.471929),
])
sketch10.setExpression("Constraints[5]", "Params.sketch10_length")
pocket4 = doc.addObject("PartDesign::Pocket", "Pocket003")
body.addObject(pocket4)
pocket4.Profile = sketch10
pocket4.setExpression("Length", "Params.pocket4_length")
pocket4.Midplane = True
doc.recompute()

datumline = doc.addObject("PartDesign::Line", "DatumLine")
body.addObject(datumline)
datumline.Placement = App.Placement(App.Vector(0, 0, 0), App.Rotation(App.Vector(0, 0, 1), App.Vector(-0.330350424, 0.943858357, 0)))
linearpattern2 = doc.addObject("PartDesign::LinearPattern", "LinearPattern001")
body.addObject(linearpattern2)
linearpattern2.Originals = [pocket4]
linearpattern2.Direction = (datumline, [""])
linearpattern2.Mode = "offset"
linearpattern2.setExpression("Offset", "Params.linearpattern2_pitch")
linearpattern2.Occurrences = 7
body.Tip = linearpattern2
doc.recompute()

fillet = doc.addObject("PartDesign::Fillet", "Fillet")
body.addObject(fillet)
fillet.Base = (linearpattern2, edges_at(linearpattern2, [(-5.5, 4.886, 0)]))
fillet.setExpression("Radius", "Params.fillet_radius")
doc.recompute()

fillet2 = doc.addObject("PartDesign::Fillet", "Fillet001")
body.addObject(fillet2)
fillet2.Base = (fillet, edges_at(fillet, [(-4, 6.386, 0)]))
fillet2.setExpression("Radius", "Params.fillet2_radius")
doc.recompute()

mirrored = doc.addObject("PartDesign::Mirrored", "Mirrored")
body.addObject(mirrored)
mirrored.Originals = [pad6, pocket4]
mirrored.MirrorPlane = (doc.YZ_Plane, [""])
body.Tip = mirrored

sketch11 = doc.addObject("Sketcher::SketchObject", "Sketch010")
body.addObject(sketch11)
sketch11.AttachmentSupport = (doc.XY_Plane, [""])
sketch11.MapMode = "FlatFace"
sketch11.addGeometry([
    Part.LineSegment(App.Vector(6.11, 2.24, 0), App.Vector(5.94, 2.24, 0)),
    Part.LineSegment(App.Vector(5.94, 2.24, 0), App.Vector(5.94, 1.77, 0)),
    Part.LineSegment(App.Vector(5.94, 1.77, 0), App.Vector(6.11, 2.24, 0)),
], False)
sketch11.addConstraint([
    Sketcher.Constraint("Coincident", 0, 2, 1, 1),
    Sketcher.Constraint("Coincident", 1, 2, 2, 1),
    Sketcher.Constraint("Coincident", 2, 2, 0, 1),
    Sketcher.Constraint("Horizontal", 0),
    Sketcher.Constraint("Vertical", 1),
    Sketcher.Constraint("Distance", 2, 0.5),
    Sketcher.Constraint("DistanceY", 1, 2, 1, 1, 0.471929),
    Sketcher.Constraint("DistanceY", -1, 1, 0, 2, 2.243858),
    Sketcher.Constraint("DistanceX", -1, 1, 2, 2, 6.10535),
])
sketch11.setExpression("Constraints[5]", "Params.sketch11_length")
pocket5 = doc.addObject("PartDesign::Pocket", "Pocket004")
body.addObject(pocket5)
pocket5.Profile = sketch11
pocket5.setExpression("Length", "Params.pocket5_length")
pocket5.Midplane = True

sketch12 = doc.addObject("Sketcher::SketchObject", "Sketch011")
body.addObject(sketch12)
sketch12.AttachmentSupport = (doc.XY_Plane, [""])
sketch12.MapMode = "FlatFace"
sketch12.addGeometry([
    Part.LineSegment(App.Vector(6.27, 2.72, 0), App.Vector(6.11, 2.72, 0)),
    Part.LineSegment(App.Vector(6.11, 2.72, 0), App.Vector(6.11, 2.24, 0)),
    Part.LineSegment(App.Vector(6.11, 2.24, 0), App.Vector(6.27, 2.72, 0)),
], False)
sketch12.addConstraint([
    Sketcher.Constraint("Coincident", 0, 2, 1, 1),
    Sketcher.Constraint("Coincident", 1, 2, 2, 1),
    Sketcher.Constraint("Coincident", 2, 2, 0, 1),
    Sketcher.Constraint("Horizontal", 0),
    Sketcher.Constraint("Vertical", 1),
    Sketcher.Constraint("Distance", 2, 0.5),
    Sketcher.Constraint("DistanceY", 1, 2, 1, 1, 0.471929),
    Sketcher.Constraint("DistanceX", -1, 1, 0, 2, 6.10535),
    Sketcher.Constraint("DistanceY", -1, 1, 1, 2, 2.243858),
])
sketch12.setExpression("Constraints[5]", "Params.sketch12_length")
pocket6 = doc.addObject("PartDesign::Pocket", "Pocket005")
body.addObject(pocket6)
pocket6.Profile = sketch12
pocket6.setExpression("Length", "Params.pocket6_length")
pocket6.Midplane = True

sketch13 = doc.addObject("Sketcher::SketchObject", "Sketch012")
body.addObject(sketch13)
sketch13.AttachmentSupport = (doc.XY_Plane, [""])
sketch13.MapMode = "FlatFace"
sketch13.addGeometry([
    Part.LineSegment(App.Vector(6.44, 3.19, 0), App.Vector(6.27, 3.19, 0)),
    Part.LineSegment(App.Vector(6.27, 3.19, 0), App.Vector(6.27, 2.72, 0)),
    Part.LineSegment(App.Vector(6.27, 2.72, 0), App.Vector(6.44, 3.19, 0)),
], False)
sketch13.addConstraint([
    Sketcher.Constraint("Coincident", 0, 2, 1, 1),
    Sketcher.Constraint("Coincident", 1, 2, 2, 1),
    Sketcher.Constraint("Coincident", 2, 2, 0, 1),
    Sketcher.Constraint("Horizontal", 0),
    Sketcher.Constraint("Vertical", 1),
    Sketcher.Constraint("Distance", 2, 0.5),
    Sketcher.Constraint("DistanceY", 1, 2, 1, 1, 0.471929),
    Sketcher.Constraint("DistanceX", -1, 1, 2, 2, 6.435701),
    Sketcher.Constraint("DistanceY", -1, 1, 0, 2, 3.187717),
])
sketch13.setExpression("Constraints[5]", "Params.sketch13_length")
pocket7 = doc.addObject("PartDesign::Pocket", "Pocket006")
body.addObject(pocket7)
pocket7.Profile = sketch13
pocket7.setExpression("Length", "Params.pocket7_length")
pocket7.Midplane = True

sketch14 = doc.addObject("Sketcher::SketchObject", "Sketch013")
body.addObject(sketch14)
sketch14.AttachmentSupport = (doc.XY_Plane, [""])
sketch14.MapMode = "FlatFace"
sketch14.addGeometry([
    Part.LineSegment(App.Vector(6.6, 3.66, 0), App.Vector(6.44, 3.66, 0)),
    Part.LineSegment(App.Vector(6.44, 3.66, 0), App.Vector(6.44, 3.19, 0)),
    Part.LineSegment(App.Vector(6.44, 3.19, 0), App.Vector(6.6, 3.66, 0)),
], False)
sketch14.addConstraint([
    Sketcher.Constraint("Coincident", 0, 2, 1, 1),
    Sketcher.Constraint("Coincident", 1, 2, 2, 1),
    Sketcher.Constraint("Coincident", 2, 2, 0, 1),
    Sketcher.Constraint("Horizontal", 0),
    Sketcher.Constraint("Vertical", 1),
    Sketcher.Constraint("Distance", 2, 0.5),
    Sketcher.Constraint("DistanceY", 1, 2, 1, 1, 0.471929),
    Sketcher.Constraint("DistanceX", -1, 1, 0, 2, 6.435701),
    Sketcher.Constraint("DistanceY", -1, 1, 0, 2, 3.659646),
])
sketch14.setExpression("Constraints[5]", "Params.sketch14_length")
pocket8 = doc.addObject("PartDesign::Pocket", "Pocket007")
body.addObject(pocket8)
pocket8.Profile = sketch14
pocket8.setExpression("Length", "Params.pocket8_length")
pocket8.Midplane = True

sketch15 = doc.addObject("Sketcher::SketchObject", "Sketch014")
body.addObject(sketch15)
sketch15.AttachmentSupport = (doc.XY_Plane, [""])
sketch15.MapMode = "FlatFace"
sketch15.addGeometry([
    Part.LineSegment(App.Vector(6.77, 4.13, 0), App.Vector(6.6, 4.13, 0)),
    Part.LineSegment(App.Vector(6.6, 4.13, 0), App.Vector(6.6, 3.66, 0)),
    Part.LineSegment(App.Vector(6.6, 3.66, 0), App.Vector(6.77, 4.13, 0)),
], False)
sketch15.addConstraint([
    Sketcher.Constraint("Coincident", 0, 2, 1, 1),
    Sketcher.Constraint("Coincident", 1, 2, 2, 1),
    Sketcher.Constraint("Coincident", 2, 2, 0, 1),
    Sketcher.Constraint("Horizontal", 0),
    Sketcher.Constraint("Vertical", 1),
    Sketcher.Constraint("Distance", 2, 0.5),
    Sketcher.Constraint("DistanceY", 1, 2, 1, 1, 0.471929),
    Sketcher.Constraint("DistanceX", -1, 1, 2, 2, 6.766051),
    Sketcher.Constraint("DistanceY", -1, 1, 0, 2, 4.131575),
])
sketch15.setExpression("Constraints[5]", "Params.sketch15_length")
pocket9 = doc.addObject("PartDesign::Pocket", "Pocket008")
body.addObject(pocket9)
pocket9.Profile = sketch15
pocket9.setExpression("Length", "Params.pocket9_length")
pocket9.Midplane = True

sketch16 = doc.addObject("Sketcher::SketchObject", "Sketch015")
body.addObject(sketch16)
sketch16.AttachmentSupport = (doc.XY_Plane, [""])
sketch16.MapMode = "FlatFace"
sketch16.addGeometry([
    Part.LineSegment(App.Vector(6.93, 4.6, 0), App.Vector(6.77, 4.6, 0)),
    Part.LineSegment(App.Vector(6.77, 4.6, 0), App.Vector(6.77, 4.13, 0)),
    Part.LineSegment(App.Vector(6.77, 4.13, 0), App.Vector(6.93, 4.6, 0)),
], False)
sketch16.addConstraint([
    Sketcher.Constraint("Coincident", 0, 2, 1, 1),
    Sketcher.Constraint("Coincident", 1, 2, 2, 1),
    Sketcher.Constraint("Coincident", 2, 2, 0, 1),
    Sketcher.Constraint("Horizontal", 0),
    Sketcher.Constraint("Vertical", 1),
    Sketcher.Constraint("Distance", 2, 0.5),
    Sketcher.Constraint("DistanceY", 1, 2, 1, 1, 0.471929),
    Sketcher.Constraint("DistanceX", -1, 1, 0, 2, 6.766051),
    Sketcher.Constraint("DistanceY", -1, 1, 0, 2, 4.603504),
])
sketch16.setExpression("Constraints[5]", "Params.sketch16_length")
pocket10 = doc.addObject("PartDesign::Pocket", "Pocket009")
body.addObject(pocket10)
pocket10.Profile = sketch16
pocket10.setExpression("Length", "Params.pocket10_length")
pocket10.Midplane = True
doc.recompute()

fillet3 = doc.addObject("PartDesign::Fillet", "Fillet002")
body.addObject(fillet3)
fillet3.Base = (pocket10, edges_at(pocket10, [(5.5, 4.886, 0)]))
fillet3.setExpression("Radius", "Params.fillet3_radius")
doc.recompute()

fillet4 = doc.addObject("PartDesign::Fillet", "Fillet003")
body.addObject(fillet4)
fillet4.Base = (fillet3, edges_at(fillet3, [(4, 6.386, 0)]))
fillet4.setExpression("Radius", "Params.fillet4_radius")

doc.recompute()
